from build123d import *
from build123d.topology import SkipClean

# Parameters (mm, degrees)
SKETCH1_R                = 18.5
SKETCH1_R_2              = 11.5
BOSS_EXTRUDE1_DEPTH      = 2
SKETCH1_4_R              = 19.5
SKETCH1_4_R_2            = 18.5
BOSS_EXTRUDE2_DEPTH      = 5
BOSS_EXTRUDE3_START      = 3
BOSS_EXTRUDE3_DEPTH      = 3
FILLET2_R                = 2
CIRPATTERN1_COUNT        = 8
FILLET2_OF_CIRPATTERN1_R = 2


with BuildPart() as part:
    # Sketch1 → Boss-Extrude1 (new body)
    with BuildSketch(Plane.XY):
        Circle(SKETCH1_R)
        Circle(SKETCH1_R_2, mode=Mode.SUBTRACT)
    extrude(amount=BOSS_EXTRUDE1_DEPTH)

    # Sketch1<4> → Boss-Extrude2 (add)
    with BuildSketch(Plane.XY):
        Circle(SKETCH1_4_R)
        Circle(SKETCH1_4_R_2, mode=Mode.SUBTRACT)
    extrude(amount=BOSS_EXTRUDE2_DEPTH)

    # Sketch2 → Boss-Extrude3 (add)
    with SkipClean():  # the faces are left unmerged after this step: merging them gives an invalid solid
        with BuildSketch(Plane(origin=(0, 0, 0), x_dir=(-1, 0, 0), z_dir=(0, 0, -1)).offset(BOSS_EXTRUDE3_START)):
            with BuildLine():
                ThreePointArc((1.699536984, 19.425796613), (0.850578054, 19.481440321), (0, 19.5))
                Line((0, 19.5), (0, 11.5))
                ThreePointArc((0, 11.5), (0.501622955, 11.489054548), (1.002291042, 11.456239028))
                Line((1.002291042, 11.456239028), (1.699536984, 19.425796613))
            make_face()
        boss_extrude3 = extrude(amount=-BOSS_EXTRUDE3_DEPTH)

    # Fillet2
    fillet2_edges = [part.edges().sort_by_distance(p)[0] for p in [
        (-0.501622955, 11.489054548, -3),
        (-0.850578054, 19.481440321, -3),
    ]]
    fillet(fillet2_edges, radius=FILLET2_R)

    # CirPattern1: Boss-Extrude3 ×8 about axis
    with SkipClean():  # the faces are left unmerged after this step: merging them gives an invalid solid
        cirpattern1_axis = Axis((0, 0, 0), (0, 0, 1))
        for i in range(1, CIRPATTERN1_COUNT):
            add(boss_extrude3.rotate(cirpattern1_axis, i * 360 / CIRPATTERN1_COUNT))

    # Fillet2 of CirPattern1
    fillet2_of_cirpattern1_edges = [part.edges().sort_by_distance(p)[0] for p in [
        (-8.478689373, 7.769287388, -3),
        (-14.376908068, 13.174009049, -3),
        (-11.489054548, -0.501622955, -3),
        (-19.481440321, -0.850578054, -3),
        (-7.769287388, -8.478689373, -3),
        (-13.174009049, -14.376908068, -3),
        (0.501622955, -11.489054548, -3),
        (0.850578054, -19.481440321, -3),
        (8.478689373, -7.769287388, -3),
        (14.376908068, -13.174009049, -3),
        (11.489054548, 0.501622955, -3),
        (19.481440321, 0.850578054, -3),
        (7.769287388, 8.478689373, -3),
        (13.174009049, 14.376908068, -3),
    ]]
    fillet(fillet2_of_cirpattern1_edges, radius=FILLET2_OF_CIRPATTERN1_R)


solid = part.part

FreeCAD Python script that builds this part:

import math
import FreeCAD as App
import Part
import Sketcher
from FreeCAD import Vector
Q = App.Units.Quantity


def edges_at(feature, points):
    """Names of the edges that pass closest to the given points."""
    edges = feature.Shape.Edges
    near = lambda p: min(range(len(edges)), key=lambda i: edges[i].distToShape(Part.Vertex(*p))[0])
    return sorted({f"Edge{near(p) + 1}" for p in points})

doc = App.newDocument("Part")
body = doc.addObject("PartDesign::Body", "Body")

# Sketch on XY plane
sketch1 = doc.addObject("Sketcher::SketchObject", "Sketch")
body.addObject(sketch1)
sketch1.AttachmentSupport = (doc.XY_Plane, [""])
sketch1.MapMode = "FlatFace"
sketch1.addGeometry(Part.Circle(Vector(0, 0, 0), Vector(0, 0, 1), 18), False)
sketch1.addGeometry(Part.Circle(Vector(0, 0, 0), Vector(0, 0, 1), 12), False)
sketch1.addConstraint(Sketcher.Constraint("Coincident", 0, 3, -1, 1))
sketch1.addConstraint(Sketcher.Constraint("Coincident", 1, 3, -1, 1))
sketch1.addConstraint(Sketcher.Constraint("Diameter", 0, Q("37 mm")))
sketch1.addConstraint(Sketcher.Constraint("Diameter", 1, Q("23 mm")))
pad1 = doc.addObject("PartDesign::Pad", "Pad")
body.addObject(pad1)
pad1.Profile = sketch1
pad1.Length = 2

# Sketch on XY plane
sketch2 = doc.addObject("Sketcher::SketchObject", "Sketch001")
body.addObject(sketch2)
sketch2.AttachmentSupport = (doc.XY_Plane, [""])
sketch2.MapMode = "FlatFace"
sketch2.addGeometry(Part.Circle(Vector(0, 0, 0), Vector(0, 0, 1), 20), False)
sketch2.addGeometry(Part.Circle(Vector(0, 0, 0), Vector(0, 0, 1), 18), False)
sketch2.addConstraint(Sketcher.Constraint("Coincident", 0, 3, -1, 1))
sketch2.addConstraint(Sketcher.Constraint("Coincident", 1, 3, -1, 1))
sketch2.addConstraint(Sketcher.Constraint("Diameter", 0, Q("39 mm")))
sketch2.addConstraint(Sketcher.Constraint("Diameter", 1, Q("37 mm")))
pad2 = doc.addObject("PartDesign::Pad", "Pad001")
body.addObject(pad2)
pad2.Profile = sketch2
pad2.Length = 5

# Sketch on XY plane
sketch3 = doc.addObject("Sketcher::SketchObject", "Sketch002")
body.addObject(sketch3)
sketch3.AttachmentSupport = (doc.XY_Plane, [""])
sketch3.MapMode = "FlatFace"
sketch3.AttachmentOffset = App.Placement(Vector(0, 0, -3), App.Rotation())
sketch3.addGeometry(Part.ArcOfCircle(Part.Circle(Vector(0, 0, 0), Vector(0, 0, 1), 19.5), math.radians(90), math.radians(95)), False)
sketch3.addGeometry(Part.LineSegment(Vector(0, 19.5, 0), Vector(0, 11.5, 0)), False)
sketch3.addGeometry(Part.ArcOfCircle(Part.Circle(Vector(0, 0, 0), Vector(0, 0, 1), 11.5), math.radians(90), math.radians(95)), False)
sketch3.addGeometry(Part.LineSegment(Vector(-1, 11.5, 0), Vector(-1.7, 19.4, 0)), False)
sketch3.addConstraint(Sketcher.Constraint("Coincident", 0, 1, 1, 1))
sketch3.addConstraint(Sketcher.Constraint("Coincident", 1, 2, 2, 1))
sketch3.addConstraint(Sketcher.Constraint("Coincident", 2, 2, 3, 1))
sketch3.addConstraint(Sketcher.Constraint("Coincident", 3, 2, 0, 2))
sketch3.addConstraint(Sketcher.Constraint("Vertical", 1))
sketch3.addConstraint(Sketcher.Constraint("Coincident", 0, 3, -1, 1))
sketch3.addConstraint(Sketcher.Constraint("Coincident", 2, 3, -1, 1))
sketch3.addConstraint(Sketcher.Constraint("PointOnObject", 0, 1, -2))
sketch3.addConstraint(Sketcher.Constraint("Radius", 0, Q("19.5 mm")))
sketch3.addConstraint(Sketcher.Constraint("Radius", 2, Q("11.5 mm")))
sketch3.addConstraint(Sketcher.Constraint("Angle", 3, Q("95 deg")))
sketch3.addConstraint(Sketcher.Constraint("DistanceX", 2, 2, -1, 1, Q("1.002291 mm")))
pad3 = doc.addObject("PartDesign::Pad", "Pad002")
body.addObject(pad3)
pad3.Profile = sketch3
pad3.Length = 3
doc.recompute()

fillet = doc.addObject("PartDesign::Fillet", "Fillet")
body.addObject(fillet)
fillet.Base = (pad3, edges_at(pad3, [(-0.502, 11.489, -3), (-0.851, 19.481, -3)]))
fillet.Radius = 2
doc.recompute()

polarpattern = doc.addObject("PartDesign::PolarPattern", "PolarPattern")
body.addObject(polarpattern)
polarpattern.Originals = [pad3]
polarpattern.Axis = (doc.Z_Axis, [""])
polarpattern.Angle = 360
polarpattern.Occurrences = 8
body.Tip = polarpattern
doc.recompute()

fillet2 = doc.addObject("PartDesign::Fillet", "Fillet001")
body.addObject(fillet2)
fillet2.Base = (polarpattern, edges_at(polarpattern, [
    (-8.479, 7.769, -3),
    (-14.377, 13.174, -3),
    (-11.489, -0.502, -3),
    (-19.481, -0.851, -3),
    (-7.769, -8.479, -3),
    (-13.174, -14.377, -3),
    (0.502, -11.489, -3),
    (0.851, -19.481, -3),
    (8.479, -7.769, -3),
    (14.377, -13.174, -3),
    (11.489, 0.502, -3),
    (19.481, 0.851, -3),
    (7.769, 8.479, -3),
    (13.174, 14.377, -3),
]))
fillet2.Radius = 2

doc.recompute()
